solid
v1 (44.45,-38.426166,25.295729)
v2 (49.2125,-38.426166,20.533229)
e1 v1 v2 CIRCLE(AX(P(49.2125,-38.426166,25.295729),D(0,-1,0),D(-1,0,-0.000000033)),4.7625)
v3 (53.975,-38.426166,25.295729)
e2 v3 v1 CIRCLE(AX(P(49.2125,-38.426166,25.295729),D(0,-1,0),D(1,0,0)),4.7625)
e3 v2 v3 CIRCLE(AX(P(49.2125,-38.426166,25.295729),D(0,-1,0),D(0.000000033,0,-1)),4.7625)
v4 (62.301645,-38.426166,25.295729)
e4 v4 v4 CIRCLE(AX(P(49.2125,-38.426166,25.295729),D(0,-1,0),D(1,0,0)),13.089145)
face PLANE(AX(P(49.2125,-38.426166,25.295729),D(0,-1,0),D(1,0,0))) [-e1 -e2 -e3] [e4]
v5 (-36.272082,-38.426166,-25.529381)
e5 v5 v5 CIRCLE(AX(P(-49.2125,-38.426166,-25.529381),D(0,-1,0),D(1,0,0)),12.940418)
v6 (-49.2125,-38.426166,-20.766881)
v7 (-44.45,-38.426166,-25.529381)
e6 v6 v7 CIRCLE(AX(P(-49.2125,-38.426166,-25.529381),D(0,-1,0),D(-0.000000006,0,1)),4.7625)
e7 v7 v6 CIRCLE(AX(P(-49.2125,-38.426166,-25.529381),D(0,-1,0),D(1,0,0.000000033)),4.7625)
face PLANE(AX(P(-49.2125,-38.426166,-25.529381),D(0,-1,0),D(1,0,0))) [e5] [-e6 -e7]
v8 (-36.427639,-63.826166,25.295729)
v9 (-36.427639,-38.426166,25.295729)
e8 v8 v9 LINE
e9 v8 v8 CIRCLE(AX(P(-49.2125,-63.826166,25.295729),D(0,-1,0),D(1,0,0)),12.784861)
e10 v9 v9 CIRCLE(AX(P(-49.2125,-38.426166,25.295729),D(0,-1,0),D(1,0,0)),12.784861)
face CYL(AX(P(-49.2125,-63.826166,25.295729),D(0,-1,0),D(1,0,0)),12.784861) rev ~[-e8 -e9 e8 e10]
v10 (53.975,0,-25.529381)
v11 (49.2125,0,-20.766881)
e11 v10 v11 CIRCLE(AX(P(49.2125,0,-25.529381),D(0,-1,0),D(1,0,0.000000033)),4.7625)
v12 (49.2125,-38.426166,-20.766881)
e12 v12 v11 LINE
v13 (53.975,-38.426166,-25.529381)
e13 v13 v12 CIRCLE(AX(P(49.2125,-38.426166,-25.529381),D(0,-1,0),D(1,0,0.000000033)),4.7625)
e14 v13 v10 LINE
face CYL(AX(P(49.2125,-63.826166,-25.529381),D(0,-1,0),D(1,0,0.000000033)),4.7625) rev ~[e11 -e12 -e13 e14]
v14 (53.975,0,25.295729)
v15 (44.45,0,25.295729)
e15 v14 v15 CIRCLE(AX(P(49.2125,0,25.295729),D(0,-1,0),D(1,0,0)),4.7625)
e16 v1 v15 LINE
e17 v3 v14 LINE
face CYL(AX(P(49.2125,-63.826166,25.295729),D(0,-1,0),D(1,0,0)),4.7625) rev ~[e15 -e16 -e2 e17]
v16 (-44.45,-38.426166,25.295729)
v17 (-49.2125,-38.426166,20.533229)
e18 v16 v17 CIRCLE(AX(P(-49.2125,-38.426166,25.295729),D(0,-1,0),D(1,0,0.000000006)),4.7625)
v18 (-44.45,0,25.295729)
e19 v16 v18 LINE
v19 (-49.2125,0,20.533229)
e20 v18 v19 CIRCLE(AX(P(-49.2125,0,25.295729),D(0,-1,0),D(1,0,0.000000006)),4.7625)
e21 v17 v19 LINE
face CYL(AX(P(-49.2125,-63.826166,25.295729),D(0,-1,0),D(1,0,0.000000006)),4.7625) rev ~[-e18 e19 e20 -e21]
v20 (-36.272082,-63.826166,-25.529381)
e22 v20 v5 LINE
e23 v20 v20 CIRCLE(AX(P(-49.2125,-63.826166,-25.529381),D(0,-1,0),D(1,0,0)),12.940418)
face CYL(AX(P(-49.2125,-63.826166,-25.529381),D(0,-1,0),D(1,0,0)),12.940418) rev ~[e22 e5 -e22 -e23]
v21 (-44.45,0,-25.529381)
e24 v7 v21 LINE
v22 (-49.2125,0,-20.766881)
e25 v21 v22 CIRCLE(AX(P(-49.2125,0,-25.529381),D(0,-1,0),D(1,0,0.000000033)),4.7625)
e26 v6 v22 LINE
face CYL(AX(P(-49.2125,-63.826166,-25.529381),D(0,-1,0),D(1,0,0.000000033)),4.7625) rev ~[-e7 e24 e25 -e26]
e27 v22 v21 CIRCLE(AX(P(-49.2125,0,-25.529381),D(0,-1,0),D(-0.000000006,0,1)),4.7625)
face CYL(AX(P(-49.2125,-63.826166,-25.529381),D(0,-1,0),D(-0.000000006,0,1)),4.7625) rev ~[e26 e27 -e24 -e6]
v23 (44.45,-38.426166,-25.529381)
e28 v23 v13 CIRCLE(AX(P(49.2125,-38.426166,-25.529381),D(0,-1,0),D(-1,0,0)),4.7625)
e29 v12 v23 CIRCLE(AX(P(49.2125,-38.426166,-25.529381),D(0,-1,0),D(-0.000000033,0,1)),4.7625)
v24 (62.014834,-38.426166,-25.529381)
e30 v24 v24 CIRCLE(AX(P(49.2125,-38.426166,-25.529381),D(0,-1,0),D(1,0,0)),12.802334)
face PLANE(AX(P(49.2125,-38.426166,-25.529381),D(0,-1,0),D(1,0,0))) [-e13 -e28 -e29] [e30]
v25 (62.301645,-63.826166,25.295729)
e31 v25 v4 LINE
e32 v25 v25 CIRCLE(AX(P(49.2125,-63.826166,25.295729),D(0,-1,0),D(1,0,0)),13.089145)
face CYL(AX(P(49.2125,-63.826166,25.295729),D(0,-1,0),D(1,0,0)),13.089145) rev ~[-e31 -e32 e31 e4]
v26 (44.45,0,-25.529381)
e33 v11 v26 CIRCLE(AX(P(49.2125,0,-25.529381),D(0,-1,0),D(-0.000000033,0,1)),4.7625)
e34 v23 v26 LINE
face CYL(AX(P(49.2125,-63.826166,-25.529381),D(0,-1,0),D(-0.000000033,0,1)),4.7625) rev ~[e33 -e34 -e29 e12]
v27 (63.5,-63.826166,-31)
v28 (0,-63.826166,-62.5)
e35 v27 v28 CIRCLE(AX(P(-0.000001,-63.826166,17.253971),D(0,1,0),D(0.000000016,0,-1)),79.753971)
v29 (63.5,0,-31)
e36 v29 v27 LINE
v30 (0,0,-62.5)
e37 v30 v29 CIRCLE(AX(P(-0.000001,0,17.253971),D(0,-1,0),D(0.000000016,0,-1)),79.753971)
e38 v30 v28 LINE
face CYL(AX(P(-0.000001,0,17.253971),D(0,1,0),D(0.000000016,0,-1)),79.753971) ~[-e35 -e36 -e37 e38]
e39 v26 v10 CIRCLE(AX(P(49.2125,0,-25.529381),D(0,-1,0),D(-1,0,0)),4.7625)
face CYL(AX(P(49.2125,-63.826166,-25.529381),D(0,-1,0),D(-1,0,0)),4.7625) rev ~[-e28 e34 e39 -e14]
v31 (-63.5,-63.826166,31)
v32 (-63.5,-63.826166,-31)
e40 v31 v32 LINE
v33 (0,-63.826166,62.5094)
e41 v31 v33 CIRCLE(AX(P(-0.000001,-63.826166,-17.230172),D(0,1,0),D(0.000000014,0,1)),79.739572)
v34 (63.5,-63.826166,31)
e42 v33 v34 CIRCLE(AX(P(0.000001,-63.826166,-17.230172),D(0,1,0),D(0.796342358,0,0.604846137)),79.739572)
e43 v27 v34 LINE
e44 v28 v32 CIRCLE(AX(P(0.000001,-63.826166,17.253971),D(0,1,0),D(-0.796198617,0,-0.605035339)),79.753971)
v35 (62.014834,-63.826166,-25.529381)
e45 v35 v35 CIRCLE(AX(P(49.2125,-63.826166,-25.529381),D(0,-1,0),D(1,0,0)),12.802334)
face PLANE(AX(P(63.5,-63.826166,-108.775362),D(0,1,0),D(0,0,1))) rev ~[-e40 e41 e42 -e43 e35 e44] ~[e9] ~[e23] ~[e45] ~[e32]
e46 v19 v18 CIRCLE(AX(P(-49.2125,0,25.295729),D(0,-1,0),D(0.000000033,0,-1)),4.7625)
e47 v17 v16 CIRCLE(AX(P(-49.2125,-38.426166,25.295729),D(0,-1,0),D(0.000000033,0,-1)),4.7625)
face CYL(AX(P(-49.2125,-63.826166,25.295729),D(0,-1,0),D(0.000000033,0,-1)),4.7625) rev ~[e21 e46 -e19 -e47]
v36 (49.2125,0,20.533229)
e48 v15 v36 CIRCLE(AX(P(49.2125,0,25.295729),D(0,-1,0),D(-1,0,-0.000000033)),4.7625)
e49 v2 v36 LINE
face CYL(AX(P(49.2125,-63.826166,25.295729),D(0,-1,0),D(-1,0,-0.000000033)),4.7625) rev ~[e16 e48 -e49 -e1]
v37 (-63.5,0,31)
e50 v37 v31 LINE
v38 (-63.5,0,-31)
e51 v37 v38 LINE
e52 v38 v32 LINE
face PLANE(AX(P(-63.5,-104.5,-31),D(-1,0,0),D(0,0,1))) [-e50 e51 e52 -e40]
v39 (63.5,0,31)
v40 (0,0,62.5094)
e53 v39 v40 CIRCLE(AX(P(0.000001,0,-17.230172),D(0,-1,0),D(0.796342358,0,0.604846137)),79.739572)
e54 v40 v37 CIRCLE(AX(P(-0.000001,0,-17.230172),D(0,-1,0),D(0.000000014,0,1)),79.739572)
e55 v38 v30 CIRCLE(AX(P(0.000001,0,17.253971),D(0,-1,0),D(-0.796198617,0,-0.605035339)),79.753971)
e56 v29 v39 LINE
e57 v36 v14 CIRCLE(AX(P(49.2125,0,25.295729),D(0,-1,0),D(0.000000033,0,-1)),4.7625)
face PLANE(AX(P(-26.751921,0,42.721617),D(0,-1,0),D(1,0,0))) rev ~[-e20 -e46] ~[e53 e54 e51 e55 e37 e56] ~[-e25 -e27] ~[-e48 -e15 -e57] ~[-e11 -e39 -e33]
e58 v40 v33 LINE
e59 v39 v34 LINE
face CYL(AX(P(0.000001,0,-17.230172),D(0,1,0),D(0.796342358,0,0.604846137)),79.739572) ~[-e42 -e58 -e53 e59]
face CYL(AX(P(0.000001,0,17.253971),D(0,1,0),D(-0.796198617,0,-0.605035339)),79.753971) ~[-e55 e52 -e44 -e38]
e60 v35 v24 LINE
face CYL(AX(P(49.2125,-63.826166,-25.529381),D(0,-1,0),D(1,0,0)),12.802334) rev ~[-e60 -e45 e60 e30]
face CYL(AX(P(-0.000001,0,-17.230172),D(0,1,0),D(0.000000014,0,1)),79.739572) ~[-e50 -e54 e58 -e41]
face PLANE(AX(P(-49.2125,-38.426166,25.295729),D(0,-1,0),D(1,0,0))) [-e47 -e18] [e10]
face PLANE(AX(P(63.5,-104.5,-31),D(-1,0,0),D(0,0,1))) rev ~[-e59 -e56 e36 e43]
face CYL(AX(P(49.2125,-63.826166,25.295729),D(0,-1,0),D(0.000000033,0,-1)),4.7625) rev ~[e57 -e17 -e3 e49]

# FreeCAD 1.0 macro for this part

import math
import FreeCAD as App
import Part
import Sketcher
Q = App.Units.Quantity


def add_polygon(sketch, points):
    """Adds a closed chain of lines whose ends are joined by coincident constraints."""
    first, n = sketch.GeometryCount, len(points)
    for a, b in zip(points, points[1:] + points[:1]):
        sketch.addGeometry(Part.LineSegment(App.Vector(*a, 0), App.Vector(*b, 0)), False)
    for i in range(n):
        sketch.addConstraint(Sketcher.Constraint("Coincident", first + i, 2, first + (i + 1) % n, 1))

doc = App.newDocument("Part")
body = doc.addObject("PartDesign::Body", "Body")

# Sketch on XZ plane
sketch1 = body.newObject("Sketcher::SketchObject", "Sketch")
sketch1.AttachmentSupport = (doc.getObject("XZ_Plane"), [""])
sketch1.MapMode = "FlatFace"
sketch1.addGeometry([
    Part.ArcOfCircle(Part.Circle(App.Vector(0, -17, 0), App.Vector(0, 0, 1), 80), math.radians(90), math.radians(143)),  # 0
    Part.LineSegment(App.Vector(-64, 31, 0), App.Vector(-64, -31, 0)),  # 1
    Part.ArcOfCircle(Part.Circle(App.Vector(0, 17, 0), App.Vector(0, 0, 1), 80), math.radians(-143), math.radians(-90)),  # 2
    Part.ArcOfCircle(Part.Circle(App.Vector(0, 17, 0), App.Vector(0, 0, 1), 80), math.radians(-90), math.radians(-37)),  # 3
    Part.LineSegment(App.Vector(64, -31, 0), App.Vector(64, 31, 0)),  # 4
    Part.ArcOfCircle(Part.Circle(App.Vector(0, -17, 0), App.Vector(0, 0, 1), 80), math.radians(37), math.radians(90)),  # 5
], False)
sketch1.addConstraint([
    Sketcher.Constraint("Coincident", 0, 2, 1, 1),
    Sketcher.Constraint("Coincident", 1, 2, 2, 1),
    Sketcher.Constraint("Tangent", 2, 2, 3, 1),
    Sketcher.Constraint("Coincident", 3, 2, 4, 1),
    Sketcher.Constraint("Coincident", 4, 2, 5, 1),
    Sketcher.Constraint("Tangent", 5, 2, 0, 1),
    Sketcher.Constraint("Vertical", 1),
    Sketcher.Constraint("Vertical", 4),
    Sketcher.Constraint("Equal", 2, 3),
    Sketcher.Constraint("Equal", 0, 5),
    Sketcher.Constraint("Symmetric", 0, 2, 3, 2, -1, 1),
    Sketcher.Constraint("PointOnObject", 0, 3, -2),
    Sketcher.Constraint("PointOnObject", 2, 3, -2),
    Sketcher.Constraint("PointOnObject", 2, 2, -2),
    Sketcher.Constraint("PointOnObject", 5, 2, -2),
    Sketcher.Constraint("DistanceX", 0, 2, -1, 1, Q("2.5 in")),
    Sketcher.Constraint("DistanceY", -1, 1, 5, 2, Q("2.461 in")),
    Sketcher.Constraint("Radius", 2, Q("79.753971 mm")),
    Sketcher.Constraint("DistanceY", 1, 2, 1, 1, Q("62 mm")),
])
pad1 = body.newObject("PartDesign::Pad", "Pad")
pad1.Profile = sketch1
pad1.Length = 104.5

# Sketch on YZ plane
sketch2 = body.newObject("Sketcher::SketchObject", "Sketch001")
sketch2.AttachmentSupport = (doc.getObject("YZ_Plane"), [""])
sketch2.MapMode = "FlatFace"
sketch2.AttachmentOffset = App.Placement(App.Vector(0, 0, 2.5 * 25.4), App.Rotation())
add_polygon(sketch2, [(-104, 73), (-104, 31), (-62, 64)])  # lines 0-2
add_polygon(sketch2, [(-62, -65), (-104, -31), (-104, -67)])  # lines 3-5
sketch2.addConstraint([
    Sketcher.Constraint("Vertical", 0),
    Sketcher.Constraint("Vertical", 4),
    Sketcher.Constraint("Symmetric", 0, 2, 3, 2, -1),
    Sketcher.Constraint("Vertical", 1, 2, 5, 2),
    Sketcher.Constraint("DistanceX", 0, 2, -1, 1, Q("104.5 mm")),
    Sketcher.Constraint("DistanceY", -1, 1, 0, 2, Q("31 mm")),
    Sketcher.Constraint("DistanceX", 1, 2, -1, 1, Q("62.5 mm")),
    Sketcher.Constraint("DistanceY", 4, 2, 2, 2, Q("140.158199 mm")),
    Sketcher.Constraint("DistanceY", 4, 2, 5, 2, Q("2.220601 mm")),
    Sketcher.Constraint("DistanceY", 0, 2, 0, 1, Q("41.844587 mm")),
    Sketcher.Constraint("Distance", 1, Q("53.619994 mm")),
])
pocket1 = body.newObject("PartDesign::Pocket", "Pocket")
pocket1.Profile = sketch2
pocket1.Type = "ThroughAll"

# Sketch on XZ plane
sketch3 = body.newObject("Sketcher::SketchObject", "Sketch002")
sketch3.AttachmentSupport = (doc.getObject("XZ_Plane"), [""])
sketch3.MapMode = "FlatFace"
sketch3.AttachmentOffset = App.Placement(App.Vector(0, 0, 104.5), App.Rotation())
add_polygon(sketch3, [(-64, 31), (-64, -31), (64, -31), (64, 31)])  # lines 0-3
sketch3.addConstraint([
    Sketcher.Constraint("Vertical", 0),
    Sketcher.Constraint("Horizontal", 1),
    Sketcher.Constraint("Vertical", 2),
    Sketcher.Constraint("Horizontal", 3),
    Sketcher.Constraint("Symmetric", 0, 2, 2, 2, -1, 1),
    Sketcher.Constraint("DistanceX", 1, 1, 1, 2, Q("5 in")),
    Sketcher.Constraint("DistanceY", 0, 2, 0, 1, Q("62 mm")),
])
pad2 = body.newObject("PartDesign::Pad", "Pad001")
pad2.Profile = sketch3
pad2.Length = 27

# Sketch on XY plane
sketch4 = body.newObject("Sketcher::SketchObject", "Sketch003")
sketch4.AttachmentSupport = (doc.getObject("XY_Plane"), [""])
sketch4.MapMode = "FlatFace"
sketch4.AttachmentOffset = App.Placement(App.Vector(0, 0, -31), App.Rotation())
sketch4.addGeometry([
    Part.ArcOfCircle(Part.Circle(App.Vector(0, -43, 0), App.Vector(0, 0, 1), 88), math.radians(-136), math.radians(-90)),  # 0
    Part.LineSegment(App.Vector(0, -132, 0), App.Vector(-64, -132, 0)),  # 1
    Part.LineSegment(App.Vector(-64, -132, 0), App.Vector(-64, -104, 0)),  # 2
    Part.ArcOfCircle(Part.Circle(App.Vector(0, -43, 0), App.Vector(0, 0, 1), 88), math.radians(-90), math.radians(-44)),  # 3
    Part.LineSegment(App.Vector(64, -104, 0), App.Vector(64, -132, 0)),  # 4
    Part.LineSegment(App.Vector(64, -132, 0), App.Vector(0, -132, 0)),  # 5
], False)
sketch4.addConstraint([
    Sketcher.Constraint("Tangent", 0, 2, 1, 1),
    Sketcher.Constraint("Coincident", 1, 2, 2, 1),
    Sketcher.Constraint("Coincident", 2, 2, 0, 1),
    Sketcher.Constraint("Coincident", 3, 2, 4, 1),
    Sketcher.Constraint("Coincident", 4, 2, 5, 1),
    Sketcher.Constraint("Tangent", 5, 2, 3, 1),
    Sketcher.Constraint("Horizontal", 1),
    Sketcher.Constraint("Vertical", 2),
    Sketcher.Constraint("Vertical", 4),
    Sketcher.Constraint("Horizontal", 5),
    Sketcher.Constraint("Coincident", 3, 3, 0, 3),
    Sketcher.Constraint("Equal", 0, 3),
    Sketcher.Constraint("Symmetric", 2, 2, 3, 2, -2),
    Sketcher.Constraint("DistanceX", 1, 2, 1, 1, Q("2.5 in")),
    Sketcher.Constraint("DistanceY", 2, 1, 2, 2, Q("27 mm")),
    Sketcher.Constraint("DistanceY", 0, 2, -1, 1, Q("131.5 mm")),
])
pocket2 = body.newObject("PartDesign::Pocket", "Pocket001")
pocket2.Profile = sketch4
pocket2.Type = "ThroughAll"
pocket2.Reversed = True

# Sketch on YZ plane
sketch5 = body.newObject("Sketcher::SketchObject", "Sketch004")
sketch5.AttachmentSupport = (doc.getObject("YZ_Plane"), [""])
sketch5.MapMode = "FlatFace"
sketch5.AttachmentOffset = App.Placement(App.Vector(0, 0, 2.5 * 25.4), App.Rotation())
add_polygon(sketch5, [(-142, 98), (-142, -109), (-64, -109), (-64, 98)])  # lines 0-3
sketch5.addConstraint([
    Sketcher.Constraint("Vertical", 0),
    Sketcher.Constraint("Horizontal", 1),
    Sketcher.Constraint("Vertical", 2),
    Sketcher.Constraint("Horizontal", 3),
    Sketcher.Constraint("DistanceY", 0, 2, 0, 1, Q("207.146659 mm")),
    Sketcher.Constraint("DistanceX", 1, 1, 1, 2, Q("78.298144 mm")),
    Sketcher.Constraint("DistanceX", 0, 2, -1, 1, Q("142.12431 mm")),
    Sketcher.Constraint("DistanceY", 0, 2, -1, 1, Q("108.775362 mm")),
])
pocket3 = body.newObject("PartDesign::Pocket", "Pocket002")
pocket3.Profile = sketch5
pocket3.Type = "ThroughAll"

# Sketch on XZ plane
sketch6 = body.newObject("Sketcher::SketchObject", "Sketch005")
sketch6.AttachmentSupport = (doc.getObject("XZ_Plane"), [""])
sketch6.MapMode = "FlatFace"
sketch6.AttachmentOffset = App.Placement(App.Vector(0, 0, 63.826166), App.Rotation())
sketch6.addGeometry([
    Part.ArcOfCircle(Part.Circle(App.Vector(49.2, -25.5, 0), App.Vector(0, 0, 1), 4.8), math.radians(0), math.radians(90)),  # 0
    Part.ArcOfCircle(Part.Circle(App.Vector(49.2, -25.5, 0), App.Vector(0, 0, 1), 4.8), math.radians(90), math.radians(180)),  # 1
    Part.ArcOfCircle(Part.Circle(App.Vector(49.2, -25.5, 0), App.Vector(0, 0, 1), 4.8), math.radians(180), math.radians(360)),  # 2
    Part.ArcOfCircle(Part.Circle(App.Vector(-49.2, -25.5, 0), App.Vector(0, 0, 1), 4.8), math.radians(90), math.radians(360)),  # 3
    Part.ArcOfCircle(Part.Circle(App.Vector(-49.2, -25.5, 0), App.Vector(0, 0, 1), 4.8), math.radians(0), math.radians(90)),  # 4
    Part.ArcOfCircle(Part.Circle(App.Vector(-49.2, 25.3, 0), App.Vector(0, 0, 1), 4.8), math.radians(0), math.radians(270)),  # 5
    Part.ArcOfCircle(Part.Circle(App.Vector(-49.2, 25.3, 0), App.Vector(0, 0, 1), 4.8), math.radians(-90), math.radians(0)),  # 6
    Part.ArcOfCircle(Part.Circle(App.Vector(49.2, 25.3, 0), App.Vector(0, 0, 1), 4.8), math.radians(-180), math.radians(-90)),  # 7
    Part.ArcOfCircle(Part.Circle(App.Vector(49.2, 25.3, 0), App.Vector(0, 0, 1), 4.8), math.radians(-90), math.radians(0)),  # 8
    Part.ArcOfCircle(Part.Circle(App.Vector(49.2, 25.3, 0), App.Vector(0, 0, 1), 4.8), math.radians(0), math.radians(180)),  # 9
], False)
sketch6.addConstraint([
    Sketcher.Constraint("Tangent", 0, 2, 1, 1),
    Sketcher.Constraint("Tangent", 1, 2, 2, 1),
    Sketcher.Constraint("Tangent", 2, 2, 0, 1),
    Sketcher.Constraint("Tangent", 3, 1, 4, 2),
    Sketcher.Constraint("Coincident", 4, 1, 3, 2),
    Sketcher.Constraint("Tangent", 5, 1, 6, 2),
    Sketcher.Constraint("Coincident", 6, 1, 5, 2),
    Sketcher.Constraint("Tangent", 7, 2, 8, 1),
    Sketcher.Constraint("Tangent", 8, 2, 9, 1),
    Sketcher.Constraint("Tangent", 9, 2, 7, 1),
    Sketcher.Constraint("Equal", 2, 3),
    Sketcher.Constraint("Equal", 4, 5),
    Sketcher.Constraint("Equal", 6, 7),
    Sketcher.Constraint("Symmetric", 0, 3, 3, 3, -2),
    Sketcher.Constraint("Symmetric", 5, 3, 7, 3, -2),
    Sketcher.Constraint("Horizontal", 4, 3, 1, 2),
    Sketcher.Constraint("Horizontal", 1, 2, 2, 2),
    Sketcher.Constraint("Horizontal", 2, 2, 4, 1),
    Sketcher.Constraint("Horizontal", 9, 3, 5, 1),
    Sketcher.Constraint("Horizontal", 5, 1, 8, 2),
    Sketcher.Constraint("Horizontal", 8, 2, 9, 2),
    Sketcher.Constraint("Vertical", 4, 3, 5, 3),
    Sketcher.Constraint("Vertical", 9, 3, 0, 2),
    Sketcher.Constraint("Vertical", 6, 3, 3, 1),
    Sketcher.Constraint("Vertical", 3, 1, 6, 1),
    Sketcher.Constraint("Vertical", 0, 2, 7, 2),
    Sketcher.Constraint("Radius", 0, Q("0.1875 in")),
    Sketcher.Constraint("DistanceX", -1, 1, 1, 2, Q("1.75 in")),
    Sketcher.Constraint("DistanceY", 0, 3, -1, 1, Q("25.529381 mm")),
    Sketcher.Constraint("DistanceY", -1, 1, 5, 3, Q("25.295729 mm")),
])
pocket4 = body.newObject("PartDesign::Pocket", "Pocket003")
pocket4.Profile = sketch6
pocket4.Type = "ThroughAll"

# Sketch on XZ plane
sketch7 = body.newObject("Sketcher::SketchObject", "Sketch006")
sketch7.AttachmentSupport = (doc.getObject("XZ_Plane"), [""])
sketch7.MapMode = "FlatFace"
sketch7.AttachmentOffset = App.Placement(App.Vector(0, 0, 63.826166), App.Rotation())
sketch7.addGeometry([
    Part.Circle(App.Vector(49, -26, 0), App.Vector(0, 0, 1), 13),
    Part.Circle(App.Vector(-49, -26, 0), App.Vector(0, 0, 1), 13),
    Part.Circle(App.Vector(-49, 25, 0), App.Vector(0, 0, 1), 13),
    Part.Circle(App.Vector(49, 25, 0), App.Vector(0, 0, 1), 13),
], False)
sketch7.addConstraint([
    Sketcher.Constraint("Symmetric", 0, 3, 1, 3, -2),
    Sketcher.Constraint("Symmetric", 2, 3, 3, 3, -2),
    Sketcher.Constraint("Vertical", 1, 3, 2, 3),
    Sketcher.Constraint("Diameter", 0, Q("25.604668 mm")),
    Sketcher.Constraint("Diameter", 2, Q("25.569722 mm")),
    Sketcher.Constraint("Diameter", 3, Q("26.17829 mm")),
    Sketcher.Constraint("DistanceX", -1, 1, 0, 3, Q("1.9375 in")),
    Sketcher.Constraint("Diameter", 1, Q("25.880836 mm")),
    Sketcher.Constraint("DistanceY", 0, 3, -1, 1, Q("25.529381 mm")),
    Sketcher.Constraint("DistanceY", -1, 1, 2, 3, Q("25.295729 mm")),
])
pocket5 = body.newObject("PartDesign::Pocket", "Pocket004")
pocket5.Profile = sketch7
pocket5.Length = Q("1 in")

doc.recompute()
